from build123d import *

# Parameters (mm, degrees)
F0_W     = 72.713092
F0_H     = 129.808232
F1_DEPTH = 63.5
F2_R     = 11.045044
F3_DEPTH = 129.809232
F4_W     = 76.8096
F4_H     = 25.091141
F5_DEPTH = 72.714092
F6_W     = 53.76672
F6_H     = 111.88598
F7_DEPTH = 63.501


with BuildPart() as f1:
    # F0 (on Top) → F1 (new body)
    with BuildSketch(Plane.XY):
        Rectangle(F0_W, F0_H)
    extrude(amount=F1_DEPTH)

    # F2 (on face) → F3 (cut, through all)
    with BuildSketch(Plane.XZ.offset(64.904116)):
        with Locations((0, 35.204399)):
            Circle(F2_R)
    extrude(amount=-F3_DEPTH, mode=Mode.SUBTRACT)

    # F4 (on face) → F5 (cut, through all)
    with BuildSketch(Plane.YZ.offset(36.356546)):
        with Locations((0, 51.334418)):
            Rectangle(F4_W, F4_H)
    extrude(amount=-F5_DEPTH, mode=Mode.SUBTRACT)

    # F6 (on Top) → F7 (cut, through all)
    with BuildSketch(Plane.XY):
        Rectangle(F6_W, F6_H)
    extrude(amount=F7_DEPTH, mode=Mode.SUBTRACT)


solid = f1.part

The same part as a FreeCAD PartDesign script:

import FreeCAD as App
import Part
import Sketcher

V = App.Vector
Q = App.Units.Quantity


def add_polygon(sketch, points):
    """Adds a closed chain of lines whose ends are joined by coincident constraints."""
    first, n = sketch.GeometryCount, len(points)
    for a, b in zip(points, points[1:] + points[:1]):
        sketch.addGeometry(Part.LineSegment(App.Vector(*a, 0), App.Vector(*b, 0)), False)
    for i in range(n):
        sketch.addConstraint(Sketcher.Constraint("Coincident", first + i, 2, first + (i + 1) % n, 1))

doc = App.newDocument("Part")
body = doc.addObject("PartDesign::Body", "Body")

# Sketch on XY plane
sketch1 = body.newObject("Sketcher::SketchObject", "Sketch")
sketch1.AttachmentSupport = (doc.getObject("XY_Plane"), [""])
sketch1.MapMode = "FlatFace"
add_polygon(sketch1, [(-36, 65), (-36, -65), (36, -65), (36, 65)])  # lines 0-3
sketch1.addConstraint([
    Sketcher.Constraint("Vertical", 0),
    Sketcher.Constraint("Horizontal", 1),
    Sketcher.Constraint("Vertical", 2),
    Sketcher.Constraint("Horizontal", 3),
    Sketcher.Constraint("Symmetric", 0, 2, 2, 2, -1, 1),
    Sketcher.Constraint("DistanceY", 0, 2, 0, 1, 129.808232),
    Sketcher.Constraint("DistanceX", 1, 1, 1, 2, 72.713092),
])
pad1 = body.newObject("PartDesign::Pad", "Pad")
pad1.Profile = sketch1
pad1.Length = Q("2.5 in")

# Sketch on XZ plane
sketch2 = body.newObject("Sketcher::SketchObject", "Sketch001")
sketch2.AttachmentSupport = (doc.getObject("XZ_Plane"), [""])
sketch2.MapMode = "FlatFace"
sketch2.AttachmentOffset = App.Placement(V(0, 0, 64.904116), App.Rotation())
sketch2.addGeometry(Part.Circle(V(0, 35, 0), V(0, 0, 1), 11), False)
sketch2.addConstraint([
    Sketcher.Constraint("PointOnObject", 0, 3, -2),
    Sketcher.Constraint("Diameter", 0, 22.090088),
    Sketcher.Constraint("DistanceY", -1, 1, 0, 3, Q("1.386 in")),
])
pocket1 = body.newObject("PartDesign::Pocket", "Pocket")
pocket1.Profile = sketch2
pocket1.Type = "ThroughAll"

# Sketch on YZ plane
sketch3 = body.newObject("Sketcher::SketchObject", "Sketch002")
sketch3.AttachmentSupport = (doc.getObject("YZ_Plane"), [""])
sketch3.MapMode = "FlatFace"
sketch3.AttachmentOffset = App.Placement(V(0, 0, 36.356546), App.Rotation())
add_polygon(sketch3, [(-38, 64), (-38, 39), (38, 39), (38, 64)])  # lines 0-3
sketch3.addConstraint([
    Sketcher.Constraint("Vertical", 0),
    Sketcher.Constraint("Horizontal", 1),
    Sketcher.Constraint("Vertical", 2),
    Sketcher.Constraint("Horizontal", 3),
    Sketcher.Constraint("DistanceX", 1, 1, 1, 2, Q("3.024 in")),
    Sketcher.Constraint("DistanceX", 0, 2, -1, 1, Q("1.512 in")),
    Sketcher.Constraint("DistanceY", 0, 2, 0, 1, 25.091141),
    Sketcher.Constraint("DistanceY", -1, 1, 2, 2, 63.879989),
])
pocket2 = body.newObject("PartDesign::Pocket", "Pocket001")
pocket2.Profile = sketch3
pocket2.Type = "ThroughAll"

# Sketch on XY plane
sketch4 = body.newObject("Sketcher::SketchObject", "Sketch003")
sketch4.AttachmentSupport = (doc.getObject("XY_Plane"), [""])
sketch4.MapMode = "FlatFace"
add_polygon(sketch4, [(-27, 56), (-27, -56), (27, -56), (27, 56)])  # lines 0-3
sketch4.addConstraint([
    Sketcher.Constraint("Vertical", 0),
    Sketcher.Constraint("Horizontal", 1),
    Sketcher.Constraint("Vertical", 2),
    Sketcher.Constraint("Horizontal", 3),
    Sketcher.Constraint("Symmetric", 0, 2, 2, 2, -1, 1),
    Sketcher.Constraint("DistanceX", 1, 1, 1, 2, Q("2.1168 in")),
    Sketcher.Constraint("DistanceY", 0, 2, 0, 1, 111.88598),
])
pocket3 = body.newObject("PartDesign::Pocket", "Pocket002")
pocket3.Profile = sketch4
pocket3.Type = "ThroughAll"
pocket3.Reversed = True

doc.recompute()
